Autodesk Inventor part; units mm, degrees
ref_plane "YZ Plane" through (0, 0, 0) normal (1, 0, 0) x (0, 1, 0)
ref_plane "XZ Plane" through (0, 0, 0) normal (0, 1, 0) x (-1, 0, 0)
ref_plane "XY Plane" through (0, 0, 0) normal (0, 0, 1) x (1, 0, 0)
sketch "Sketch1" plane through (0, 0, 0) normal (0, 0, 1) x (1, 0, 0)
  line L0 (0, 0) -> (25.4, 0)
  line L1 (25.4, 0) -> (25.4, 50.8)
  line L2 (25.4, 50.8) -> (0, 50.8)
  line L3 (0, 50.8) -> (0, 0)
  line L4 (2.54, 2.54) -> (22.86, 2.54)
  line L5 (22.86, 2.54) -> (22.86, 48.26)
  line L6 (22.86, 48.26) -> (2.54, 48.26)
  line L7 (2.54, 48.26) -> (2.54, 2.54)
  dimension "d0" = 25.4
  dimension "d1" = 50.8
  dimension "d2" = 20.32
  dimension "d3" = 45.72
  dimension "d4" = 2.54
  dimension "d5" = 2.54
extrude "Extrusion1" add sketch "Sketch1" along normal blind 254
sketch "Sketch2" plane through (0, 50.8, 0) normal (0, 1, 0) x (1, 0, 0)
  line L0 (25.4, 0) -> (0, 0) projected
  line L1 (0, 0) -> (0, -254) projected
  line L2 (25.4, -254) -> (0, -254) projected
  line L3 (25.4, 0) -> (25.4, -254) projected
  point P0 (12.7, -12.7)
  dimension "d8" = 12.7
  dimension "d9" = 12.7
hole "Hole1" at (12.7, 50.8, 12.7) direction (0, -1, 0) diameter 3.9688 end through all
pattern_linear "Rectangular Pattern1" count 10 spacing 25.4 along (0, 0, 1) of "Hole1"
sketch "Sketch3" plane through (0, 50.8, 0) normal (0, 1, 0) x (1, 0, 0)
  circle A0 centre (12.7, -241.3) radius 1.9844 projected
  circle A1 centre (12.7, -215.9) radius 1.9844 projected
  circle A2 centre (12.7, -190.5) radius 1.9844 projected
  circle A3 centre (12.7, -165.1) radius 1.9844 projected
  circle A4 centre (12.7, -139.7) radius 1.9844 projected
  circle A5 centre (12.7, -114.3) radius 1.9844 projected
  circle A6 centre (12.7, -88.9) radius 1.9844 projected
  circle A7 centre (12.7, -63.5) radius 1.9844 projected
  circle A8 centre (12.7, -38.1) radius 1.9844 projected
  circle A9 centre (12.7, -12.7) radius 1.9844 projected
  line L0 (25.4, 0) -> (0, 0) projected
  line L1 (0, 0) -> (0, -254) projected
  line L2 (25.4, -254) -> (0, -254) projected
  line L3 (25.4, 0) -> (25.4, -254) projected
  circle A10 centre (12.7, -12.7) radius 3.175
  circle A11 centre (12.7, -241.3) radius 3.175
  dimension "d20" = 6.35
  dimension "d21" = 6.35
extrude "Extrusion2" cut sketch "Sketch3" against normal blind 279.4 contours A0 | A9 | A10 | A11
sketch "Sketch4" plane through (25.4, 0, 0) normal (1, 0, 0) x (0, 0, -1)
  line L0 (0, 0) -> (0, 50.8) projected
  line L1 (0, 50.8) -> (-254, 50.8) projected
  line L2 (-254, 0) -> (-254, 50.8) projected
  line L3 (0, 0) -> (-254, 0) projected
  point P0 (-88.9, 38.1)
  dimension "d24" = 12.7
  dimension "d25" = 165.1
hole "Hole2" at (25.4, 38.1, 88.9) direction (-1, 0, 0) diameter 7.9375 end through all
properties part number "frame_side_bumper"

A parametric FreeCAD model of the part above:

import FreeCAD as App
import Part
import Sketcher
Q = App.Units.Quantity


def add_polygon(sketch, points):
    """Adds a closed chain of lines whose ends are joined by coincident constraints."""
    first, n = sketch.GeometryCount, len(points)
    for a, b in zip(points, points[1:] + points[:1]):
        sketch.addGeometry(Part.LineSegment(App.Vector(*a, 0), App.Vector(*b, 0)), False)
    for i in range(n):
        sketch.addConstraint(Sketcher.Constraint("Coincident", first + i, 2, first + (i + 1) % n, 1))

doc = App.newDocument("Part")
params = doc.addObject("Spreadsheet::Sheet", "Params")
for row, (alias, value) in enumerate([
    ("sketch1_width", "1 in"),
    ("sketch1_height", "2 in"),
    ("sketch1_width2", "0.8 in"),
    ("sketch1_height2", "1.8 in"),
    ("pad1_length", "10 in"),
    ("sketch2_diameter", "0.156252 in"),
    ("hole_diameter", "0.156252 in"),
    ("linearpattern_pitch", "1 in"),
    ("sketch3_diameter", "0.25 in"),
    ("pocket1_length", "11 in"),
    ("sketch4_diameter", "0.3125 in"),
    ("hole2_diameter", "0.3125 in"),
], start=1):
    params.set(f"A{row}", alias)
    params.set(f"B{row}", "=" + value)
    params.setAlias(f"B{row}", alias)

body = doc.addObject("PartDesign::Body", "Body")

# Sketch on XY plane
sketch1 = body.newObject("Sketcher::SketchObject", "Sketch")
sketch1.AttachmentSupport = (doc.getObject("XY_Plane"), [""])
sketch1.MapMode = "FlatFace"
add_polygon(sketch1, [(0, 51), (0, 0), (25, 0), (25, 51)])  # lines 0-3
add_polygon(sketch1, [(23, 3), (3, 3), (3, 48), (23, 48)])  # lines 4-7
sketch1.addConstraint(Sketcher.Constraint("Vertical", 0))
sketch1.addConstraint(Sketcher.Constraint("Horizontal", 1))
sketch1.addConstraint(Sketcher.Constraint("Vertical", 2))
sketch1.addConstraint(Sketcher.Constraint("Horizontal", 3))
sketch1.addConstraint(Sketcher.Constraint("Horizontal", 4))
sketch1.addConstraint(Sketcher.Constraint("Vertical", 5))
sketch1.addConstraint(Sketcher.Constraint("Horizontal", 6))
sketch1.addConstraint(Sketcher.Constraint("Vertical", 7))
sketch1.addConstraint(Sketcher.Constraint("Coincident", 0, 2, -1, 1))
sketch1.addConstraint(Sketcher.Constraint("DistanceX", 1, 1, 1, 2, Q("1 in")))
sketch1.addConstraint(Sketcher.Constraint("DistanceY", 0, 2, 0, 1, Q("2 in")))
sketch1.addConstraint(Sketcher.Constraint("DistanceX", 4, 2, 4, 1, Q("0.8 in")))
sketch1.addConstraint(Sketcher.Constraint("DistanceY", 5, 1, 5, 2, Q("1.8 in")))
sketch1.addConstraint(Sketcher.Constraint("DistanceX", -1, 1, 4, 2, Q("0.1 in")))
sketch1.addConstraint(Sketcher.Constraint("DistanceY", -1, 1, 4, 2, Q("0.1 in")))
sketch1.setExpression("Constraints[17]", "Params.sketch1_width")
sketch1.setExpression("Constraints[18]", "Params.sketch1_height")
sketch1.setExpression("Constraints[19]", "Params.sketch1_width2")
sketch1.setExpression("Constraints[20]", "Params.sketch1_height2")
pad1 = body.newObject("PartDesign::Pad", "Pad")
pad1.Profile = sketch1
pad1.setExpression("Length", "Params.pad1_length")

# Sketch on XZ plane
sketch2 = body.newObject("Sketcher::SketchObject", "Sketch001")
sketch2.AttachmentSupport = (doc.getObject("XZ_Plane"), [""])
sketch2.MapMode = "FlatFace"
sketch2.AttachmentOffset = App.Placement(App.Vector(0, 0, -2 * 25.4), App.Rotation())
sketch2.addGeometry(Part.Circle(App.Vector(12.7, 12.7, 0), App.Vector(0, 0, 1), 2), False)
sketch2.addConstraint(Sketcher.Constraint("Diameter", 0, Q("0.156252 in")))
sketch2.addConstraint(Sketcher.Constraint("DistanceX", -1, 1, 0, 3, Q("0.5 in")))
sketch2.addConstraint(Sketcher.Constraint("DistanceY", -1, 1, 0, 3, Q("0.5 in")))
sketch2.setExpression("Constraints[0]", "Params.sketch2_diameter")
doc.recompute()
hole = body.newObject("PartDesign::Hole", "Hole")
hole.Profile = sketch2
hole.ThreadType = "None"
hole.setExpression("Diameter", "Params.hole_diameter")
hole.DepthType = "ThroughAll"
hole.Reversed = True
doc.recompute()

linearpattern = body.newObject("PartDesign::LinearPattern", "LinearPattern")
linearpattern.Originals = [hole]
linearpattern.Direction = (doc.getObject("Z_Axis"), [""])
linearpattern.Mode = "offset"
linearpattern.setExpression("Offset", "Params.linearpattern_pitch")
linearpattern.Occurrences = 10
body.Tip = linearpattern

# Sketch on XZ plane
sketch3 = body.newObject("Sketcher::SketchObject", "Sketch002")
sketch3.AttachmentSupport = (doc.getObject("XZ_Plane"), [""])
sketch3.MapMode = "FlatFace"
sketch3.AttachmentOffset = App.Placement(App.Vector(0, 0, -2 * 25.4), App.Rotation())
sketch3.addGeometry(Part.Circle(App.Vector(12.7, 241.3, 0), App.Vector(0, 0, 1), 3.2), False)
sketch3.addGeometry(Part.Circle(App.Vector(12.7, 12.7, 0), App.Vector(0, 0, 1), 3.2), False)
sketch3.addConstraint(Sketcher.Constraint("Equal", 0, 1))
sketch3.addConstraint(Sketcher.Constraint("Vertical", 0, 3, 1, 3))
sketch3.addConstraint(Sketcher.Constraint("Diameter", 0, Q("0.25 in")))
sketch3.addConstraint(Sketcher.Constraint("DistanceY", 1, 3, 0, 3, Q("9 in")))
sketch3.addConstraint(Sketcher.Constraint("DistanceX", -1, 1, 0, 3, Q("0.5 in")))
sketch3.addConstraint(Sketcher.Constraint("DistanceY", -1, 1, 0, 3, Q("9.5 in")))
sketch3.setExpression("Constraints[2]", "Params.sketch3_diameter")
pocket1 = body.newObject("PartDesign::Pocket", "Pocket")
pocket1.Profile = sketch3
pocket1.setExpression("Length", "Params.pocket1_length")
pocket1.Reversed = True

# Sketch on YZ plane
sketch4 = body.newObject("Sketcher::SketchObject", "Sketch003")
sketch4.AttachmentSupport = (doc.getObject("YZ_Plane"), [""])
sketch4.MapMode = "FlatFace"
sketch4.AttachmentOffset = App.Placement(App.Vector(0, 0, 1 * 25.4), App.Rotation())
sketch4.addGeometry(Part.Circle(App.Vector(38.1, 88.9, 0), App.Vector(0, 0, 1), 4), False)
sketch4.addConstraint(Sketcher.Constraint("Diameter", 0, Q("0.3125 in")))
sketch4.addConstraint(Sketcher.Constraint("DistanceX", -1, 1, 0, 3, Q("1.5 in")))
sketch4.addConstraint(Sketcher.Constraint("DistanceY", -1, 1, 0, 3, Q("3.5 in")))
sketch4.setExpression("Constraints[0]", "Params.sketch4_diameter")
doc.recompute()
hole2 = body.newObject("PartDesign::Hole", "Hole001")
hole2.Profile = sketch4
hole2.ThreadType = "None"
hole2.setExpression("Diameter", "Params.hole2_diameter")
hole2.DepthType = "ThroughAll"

doc.recompute()
